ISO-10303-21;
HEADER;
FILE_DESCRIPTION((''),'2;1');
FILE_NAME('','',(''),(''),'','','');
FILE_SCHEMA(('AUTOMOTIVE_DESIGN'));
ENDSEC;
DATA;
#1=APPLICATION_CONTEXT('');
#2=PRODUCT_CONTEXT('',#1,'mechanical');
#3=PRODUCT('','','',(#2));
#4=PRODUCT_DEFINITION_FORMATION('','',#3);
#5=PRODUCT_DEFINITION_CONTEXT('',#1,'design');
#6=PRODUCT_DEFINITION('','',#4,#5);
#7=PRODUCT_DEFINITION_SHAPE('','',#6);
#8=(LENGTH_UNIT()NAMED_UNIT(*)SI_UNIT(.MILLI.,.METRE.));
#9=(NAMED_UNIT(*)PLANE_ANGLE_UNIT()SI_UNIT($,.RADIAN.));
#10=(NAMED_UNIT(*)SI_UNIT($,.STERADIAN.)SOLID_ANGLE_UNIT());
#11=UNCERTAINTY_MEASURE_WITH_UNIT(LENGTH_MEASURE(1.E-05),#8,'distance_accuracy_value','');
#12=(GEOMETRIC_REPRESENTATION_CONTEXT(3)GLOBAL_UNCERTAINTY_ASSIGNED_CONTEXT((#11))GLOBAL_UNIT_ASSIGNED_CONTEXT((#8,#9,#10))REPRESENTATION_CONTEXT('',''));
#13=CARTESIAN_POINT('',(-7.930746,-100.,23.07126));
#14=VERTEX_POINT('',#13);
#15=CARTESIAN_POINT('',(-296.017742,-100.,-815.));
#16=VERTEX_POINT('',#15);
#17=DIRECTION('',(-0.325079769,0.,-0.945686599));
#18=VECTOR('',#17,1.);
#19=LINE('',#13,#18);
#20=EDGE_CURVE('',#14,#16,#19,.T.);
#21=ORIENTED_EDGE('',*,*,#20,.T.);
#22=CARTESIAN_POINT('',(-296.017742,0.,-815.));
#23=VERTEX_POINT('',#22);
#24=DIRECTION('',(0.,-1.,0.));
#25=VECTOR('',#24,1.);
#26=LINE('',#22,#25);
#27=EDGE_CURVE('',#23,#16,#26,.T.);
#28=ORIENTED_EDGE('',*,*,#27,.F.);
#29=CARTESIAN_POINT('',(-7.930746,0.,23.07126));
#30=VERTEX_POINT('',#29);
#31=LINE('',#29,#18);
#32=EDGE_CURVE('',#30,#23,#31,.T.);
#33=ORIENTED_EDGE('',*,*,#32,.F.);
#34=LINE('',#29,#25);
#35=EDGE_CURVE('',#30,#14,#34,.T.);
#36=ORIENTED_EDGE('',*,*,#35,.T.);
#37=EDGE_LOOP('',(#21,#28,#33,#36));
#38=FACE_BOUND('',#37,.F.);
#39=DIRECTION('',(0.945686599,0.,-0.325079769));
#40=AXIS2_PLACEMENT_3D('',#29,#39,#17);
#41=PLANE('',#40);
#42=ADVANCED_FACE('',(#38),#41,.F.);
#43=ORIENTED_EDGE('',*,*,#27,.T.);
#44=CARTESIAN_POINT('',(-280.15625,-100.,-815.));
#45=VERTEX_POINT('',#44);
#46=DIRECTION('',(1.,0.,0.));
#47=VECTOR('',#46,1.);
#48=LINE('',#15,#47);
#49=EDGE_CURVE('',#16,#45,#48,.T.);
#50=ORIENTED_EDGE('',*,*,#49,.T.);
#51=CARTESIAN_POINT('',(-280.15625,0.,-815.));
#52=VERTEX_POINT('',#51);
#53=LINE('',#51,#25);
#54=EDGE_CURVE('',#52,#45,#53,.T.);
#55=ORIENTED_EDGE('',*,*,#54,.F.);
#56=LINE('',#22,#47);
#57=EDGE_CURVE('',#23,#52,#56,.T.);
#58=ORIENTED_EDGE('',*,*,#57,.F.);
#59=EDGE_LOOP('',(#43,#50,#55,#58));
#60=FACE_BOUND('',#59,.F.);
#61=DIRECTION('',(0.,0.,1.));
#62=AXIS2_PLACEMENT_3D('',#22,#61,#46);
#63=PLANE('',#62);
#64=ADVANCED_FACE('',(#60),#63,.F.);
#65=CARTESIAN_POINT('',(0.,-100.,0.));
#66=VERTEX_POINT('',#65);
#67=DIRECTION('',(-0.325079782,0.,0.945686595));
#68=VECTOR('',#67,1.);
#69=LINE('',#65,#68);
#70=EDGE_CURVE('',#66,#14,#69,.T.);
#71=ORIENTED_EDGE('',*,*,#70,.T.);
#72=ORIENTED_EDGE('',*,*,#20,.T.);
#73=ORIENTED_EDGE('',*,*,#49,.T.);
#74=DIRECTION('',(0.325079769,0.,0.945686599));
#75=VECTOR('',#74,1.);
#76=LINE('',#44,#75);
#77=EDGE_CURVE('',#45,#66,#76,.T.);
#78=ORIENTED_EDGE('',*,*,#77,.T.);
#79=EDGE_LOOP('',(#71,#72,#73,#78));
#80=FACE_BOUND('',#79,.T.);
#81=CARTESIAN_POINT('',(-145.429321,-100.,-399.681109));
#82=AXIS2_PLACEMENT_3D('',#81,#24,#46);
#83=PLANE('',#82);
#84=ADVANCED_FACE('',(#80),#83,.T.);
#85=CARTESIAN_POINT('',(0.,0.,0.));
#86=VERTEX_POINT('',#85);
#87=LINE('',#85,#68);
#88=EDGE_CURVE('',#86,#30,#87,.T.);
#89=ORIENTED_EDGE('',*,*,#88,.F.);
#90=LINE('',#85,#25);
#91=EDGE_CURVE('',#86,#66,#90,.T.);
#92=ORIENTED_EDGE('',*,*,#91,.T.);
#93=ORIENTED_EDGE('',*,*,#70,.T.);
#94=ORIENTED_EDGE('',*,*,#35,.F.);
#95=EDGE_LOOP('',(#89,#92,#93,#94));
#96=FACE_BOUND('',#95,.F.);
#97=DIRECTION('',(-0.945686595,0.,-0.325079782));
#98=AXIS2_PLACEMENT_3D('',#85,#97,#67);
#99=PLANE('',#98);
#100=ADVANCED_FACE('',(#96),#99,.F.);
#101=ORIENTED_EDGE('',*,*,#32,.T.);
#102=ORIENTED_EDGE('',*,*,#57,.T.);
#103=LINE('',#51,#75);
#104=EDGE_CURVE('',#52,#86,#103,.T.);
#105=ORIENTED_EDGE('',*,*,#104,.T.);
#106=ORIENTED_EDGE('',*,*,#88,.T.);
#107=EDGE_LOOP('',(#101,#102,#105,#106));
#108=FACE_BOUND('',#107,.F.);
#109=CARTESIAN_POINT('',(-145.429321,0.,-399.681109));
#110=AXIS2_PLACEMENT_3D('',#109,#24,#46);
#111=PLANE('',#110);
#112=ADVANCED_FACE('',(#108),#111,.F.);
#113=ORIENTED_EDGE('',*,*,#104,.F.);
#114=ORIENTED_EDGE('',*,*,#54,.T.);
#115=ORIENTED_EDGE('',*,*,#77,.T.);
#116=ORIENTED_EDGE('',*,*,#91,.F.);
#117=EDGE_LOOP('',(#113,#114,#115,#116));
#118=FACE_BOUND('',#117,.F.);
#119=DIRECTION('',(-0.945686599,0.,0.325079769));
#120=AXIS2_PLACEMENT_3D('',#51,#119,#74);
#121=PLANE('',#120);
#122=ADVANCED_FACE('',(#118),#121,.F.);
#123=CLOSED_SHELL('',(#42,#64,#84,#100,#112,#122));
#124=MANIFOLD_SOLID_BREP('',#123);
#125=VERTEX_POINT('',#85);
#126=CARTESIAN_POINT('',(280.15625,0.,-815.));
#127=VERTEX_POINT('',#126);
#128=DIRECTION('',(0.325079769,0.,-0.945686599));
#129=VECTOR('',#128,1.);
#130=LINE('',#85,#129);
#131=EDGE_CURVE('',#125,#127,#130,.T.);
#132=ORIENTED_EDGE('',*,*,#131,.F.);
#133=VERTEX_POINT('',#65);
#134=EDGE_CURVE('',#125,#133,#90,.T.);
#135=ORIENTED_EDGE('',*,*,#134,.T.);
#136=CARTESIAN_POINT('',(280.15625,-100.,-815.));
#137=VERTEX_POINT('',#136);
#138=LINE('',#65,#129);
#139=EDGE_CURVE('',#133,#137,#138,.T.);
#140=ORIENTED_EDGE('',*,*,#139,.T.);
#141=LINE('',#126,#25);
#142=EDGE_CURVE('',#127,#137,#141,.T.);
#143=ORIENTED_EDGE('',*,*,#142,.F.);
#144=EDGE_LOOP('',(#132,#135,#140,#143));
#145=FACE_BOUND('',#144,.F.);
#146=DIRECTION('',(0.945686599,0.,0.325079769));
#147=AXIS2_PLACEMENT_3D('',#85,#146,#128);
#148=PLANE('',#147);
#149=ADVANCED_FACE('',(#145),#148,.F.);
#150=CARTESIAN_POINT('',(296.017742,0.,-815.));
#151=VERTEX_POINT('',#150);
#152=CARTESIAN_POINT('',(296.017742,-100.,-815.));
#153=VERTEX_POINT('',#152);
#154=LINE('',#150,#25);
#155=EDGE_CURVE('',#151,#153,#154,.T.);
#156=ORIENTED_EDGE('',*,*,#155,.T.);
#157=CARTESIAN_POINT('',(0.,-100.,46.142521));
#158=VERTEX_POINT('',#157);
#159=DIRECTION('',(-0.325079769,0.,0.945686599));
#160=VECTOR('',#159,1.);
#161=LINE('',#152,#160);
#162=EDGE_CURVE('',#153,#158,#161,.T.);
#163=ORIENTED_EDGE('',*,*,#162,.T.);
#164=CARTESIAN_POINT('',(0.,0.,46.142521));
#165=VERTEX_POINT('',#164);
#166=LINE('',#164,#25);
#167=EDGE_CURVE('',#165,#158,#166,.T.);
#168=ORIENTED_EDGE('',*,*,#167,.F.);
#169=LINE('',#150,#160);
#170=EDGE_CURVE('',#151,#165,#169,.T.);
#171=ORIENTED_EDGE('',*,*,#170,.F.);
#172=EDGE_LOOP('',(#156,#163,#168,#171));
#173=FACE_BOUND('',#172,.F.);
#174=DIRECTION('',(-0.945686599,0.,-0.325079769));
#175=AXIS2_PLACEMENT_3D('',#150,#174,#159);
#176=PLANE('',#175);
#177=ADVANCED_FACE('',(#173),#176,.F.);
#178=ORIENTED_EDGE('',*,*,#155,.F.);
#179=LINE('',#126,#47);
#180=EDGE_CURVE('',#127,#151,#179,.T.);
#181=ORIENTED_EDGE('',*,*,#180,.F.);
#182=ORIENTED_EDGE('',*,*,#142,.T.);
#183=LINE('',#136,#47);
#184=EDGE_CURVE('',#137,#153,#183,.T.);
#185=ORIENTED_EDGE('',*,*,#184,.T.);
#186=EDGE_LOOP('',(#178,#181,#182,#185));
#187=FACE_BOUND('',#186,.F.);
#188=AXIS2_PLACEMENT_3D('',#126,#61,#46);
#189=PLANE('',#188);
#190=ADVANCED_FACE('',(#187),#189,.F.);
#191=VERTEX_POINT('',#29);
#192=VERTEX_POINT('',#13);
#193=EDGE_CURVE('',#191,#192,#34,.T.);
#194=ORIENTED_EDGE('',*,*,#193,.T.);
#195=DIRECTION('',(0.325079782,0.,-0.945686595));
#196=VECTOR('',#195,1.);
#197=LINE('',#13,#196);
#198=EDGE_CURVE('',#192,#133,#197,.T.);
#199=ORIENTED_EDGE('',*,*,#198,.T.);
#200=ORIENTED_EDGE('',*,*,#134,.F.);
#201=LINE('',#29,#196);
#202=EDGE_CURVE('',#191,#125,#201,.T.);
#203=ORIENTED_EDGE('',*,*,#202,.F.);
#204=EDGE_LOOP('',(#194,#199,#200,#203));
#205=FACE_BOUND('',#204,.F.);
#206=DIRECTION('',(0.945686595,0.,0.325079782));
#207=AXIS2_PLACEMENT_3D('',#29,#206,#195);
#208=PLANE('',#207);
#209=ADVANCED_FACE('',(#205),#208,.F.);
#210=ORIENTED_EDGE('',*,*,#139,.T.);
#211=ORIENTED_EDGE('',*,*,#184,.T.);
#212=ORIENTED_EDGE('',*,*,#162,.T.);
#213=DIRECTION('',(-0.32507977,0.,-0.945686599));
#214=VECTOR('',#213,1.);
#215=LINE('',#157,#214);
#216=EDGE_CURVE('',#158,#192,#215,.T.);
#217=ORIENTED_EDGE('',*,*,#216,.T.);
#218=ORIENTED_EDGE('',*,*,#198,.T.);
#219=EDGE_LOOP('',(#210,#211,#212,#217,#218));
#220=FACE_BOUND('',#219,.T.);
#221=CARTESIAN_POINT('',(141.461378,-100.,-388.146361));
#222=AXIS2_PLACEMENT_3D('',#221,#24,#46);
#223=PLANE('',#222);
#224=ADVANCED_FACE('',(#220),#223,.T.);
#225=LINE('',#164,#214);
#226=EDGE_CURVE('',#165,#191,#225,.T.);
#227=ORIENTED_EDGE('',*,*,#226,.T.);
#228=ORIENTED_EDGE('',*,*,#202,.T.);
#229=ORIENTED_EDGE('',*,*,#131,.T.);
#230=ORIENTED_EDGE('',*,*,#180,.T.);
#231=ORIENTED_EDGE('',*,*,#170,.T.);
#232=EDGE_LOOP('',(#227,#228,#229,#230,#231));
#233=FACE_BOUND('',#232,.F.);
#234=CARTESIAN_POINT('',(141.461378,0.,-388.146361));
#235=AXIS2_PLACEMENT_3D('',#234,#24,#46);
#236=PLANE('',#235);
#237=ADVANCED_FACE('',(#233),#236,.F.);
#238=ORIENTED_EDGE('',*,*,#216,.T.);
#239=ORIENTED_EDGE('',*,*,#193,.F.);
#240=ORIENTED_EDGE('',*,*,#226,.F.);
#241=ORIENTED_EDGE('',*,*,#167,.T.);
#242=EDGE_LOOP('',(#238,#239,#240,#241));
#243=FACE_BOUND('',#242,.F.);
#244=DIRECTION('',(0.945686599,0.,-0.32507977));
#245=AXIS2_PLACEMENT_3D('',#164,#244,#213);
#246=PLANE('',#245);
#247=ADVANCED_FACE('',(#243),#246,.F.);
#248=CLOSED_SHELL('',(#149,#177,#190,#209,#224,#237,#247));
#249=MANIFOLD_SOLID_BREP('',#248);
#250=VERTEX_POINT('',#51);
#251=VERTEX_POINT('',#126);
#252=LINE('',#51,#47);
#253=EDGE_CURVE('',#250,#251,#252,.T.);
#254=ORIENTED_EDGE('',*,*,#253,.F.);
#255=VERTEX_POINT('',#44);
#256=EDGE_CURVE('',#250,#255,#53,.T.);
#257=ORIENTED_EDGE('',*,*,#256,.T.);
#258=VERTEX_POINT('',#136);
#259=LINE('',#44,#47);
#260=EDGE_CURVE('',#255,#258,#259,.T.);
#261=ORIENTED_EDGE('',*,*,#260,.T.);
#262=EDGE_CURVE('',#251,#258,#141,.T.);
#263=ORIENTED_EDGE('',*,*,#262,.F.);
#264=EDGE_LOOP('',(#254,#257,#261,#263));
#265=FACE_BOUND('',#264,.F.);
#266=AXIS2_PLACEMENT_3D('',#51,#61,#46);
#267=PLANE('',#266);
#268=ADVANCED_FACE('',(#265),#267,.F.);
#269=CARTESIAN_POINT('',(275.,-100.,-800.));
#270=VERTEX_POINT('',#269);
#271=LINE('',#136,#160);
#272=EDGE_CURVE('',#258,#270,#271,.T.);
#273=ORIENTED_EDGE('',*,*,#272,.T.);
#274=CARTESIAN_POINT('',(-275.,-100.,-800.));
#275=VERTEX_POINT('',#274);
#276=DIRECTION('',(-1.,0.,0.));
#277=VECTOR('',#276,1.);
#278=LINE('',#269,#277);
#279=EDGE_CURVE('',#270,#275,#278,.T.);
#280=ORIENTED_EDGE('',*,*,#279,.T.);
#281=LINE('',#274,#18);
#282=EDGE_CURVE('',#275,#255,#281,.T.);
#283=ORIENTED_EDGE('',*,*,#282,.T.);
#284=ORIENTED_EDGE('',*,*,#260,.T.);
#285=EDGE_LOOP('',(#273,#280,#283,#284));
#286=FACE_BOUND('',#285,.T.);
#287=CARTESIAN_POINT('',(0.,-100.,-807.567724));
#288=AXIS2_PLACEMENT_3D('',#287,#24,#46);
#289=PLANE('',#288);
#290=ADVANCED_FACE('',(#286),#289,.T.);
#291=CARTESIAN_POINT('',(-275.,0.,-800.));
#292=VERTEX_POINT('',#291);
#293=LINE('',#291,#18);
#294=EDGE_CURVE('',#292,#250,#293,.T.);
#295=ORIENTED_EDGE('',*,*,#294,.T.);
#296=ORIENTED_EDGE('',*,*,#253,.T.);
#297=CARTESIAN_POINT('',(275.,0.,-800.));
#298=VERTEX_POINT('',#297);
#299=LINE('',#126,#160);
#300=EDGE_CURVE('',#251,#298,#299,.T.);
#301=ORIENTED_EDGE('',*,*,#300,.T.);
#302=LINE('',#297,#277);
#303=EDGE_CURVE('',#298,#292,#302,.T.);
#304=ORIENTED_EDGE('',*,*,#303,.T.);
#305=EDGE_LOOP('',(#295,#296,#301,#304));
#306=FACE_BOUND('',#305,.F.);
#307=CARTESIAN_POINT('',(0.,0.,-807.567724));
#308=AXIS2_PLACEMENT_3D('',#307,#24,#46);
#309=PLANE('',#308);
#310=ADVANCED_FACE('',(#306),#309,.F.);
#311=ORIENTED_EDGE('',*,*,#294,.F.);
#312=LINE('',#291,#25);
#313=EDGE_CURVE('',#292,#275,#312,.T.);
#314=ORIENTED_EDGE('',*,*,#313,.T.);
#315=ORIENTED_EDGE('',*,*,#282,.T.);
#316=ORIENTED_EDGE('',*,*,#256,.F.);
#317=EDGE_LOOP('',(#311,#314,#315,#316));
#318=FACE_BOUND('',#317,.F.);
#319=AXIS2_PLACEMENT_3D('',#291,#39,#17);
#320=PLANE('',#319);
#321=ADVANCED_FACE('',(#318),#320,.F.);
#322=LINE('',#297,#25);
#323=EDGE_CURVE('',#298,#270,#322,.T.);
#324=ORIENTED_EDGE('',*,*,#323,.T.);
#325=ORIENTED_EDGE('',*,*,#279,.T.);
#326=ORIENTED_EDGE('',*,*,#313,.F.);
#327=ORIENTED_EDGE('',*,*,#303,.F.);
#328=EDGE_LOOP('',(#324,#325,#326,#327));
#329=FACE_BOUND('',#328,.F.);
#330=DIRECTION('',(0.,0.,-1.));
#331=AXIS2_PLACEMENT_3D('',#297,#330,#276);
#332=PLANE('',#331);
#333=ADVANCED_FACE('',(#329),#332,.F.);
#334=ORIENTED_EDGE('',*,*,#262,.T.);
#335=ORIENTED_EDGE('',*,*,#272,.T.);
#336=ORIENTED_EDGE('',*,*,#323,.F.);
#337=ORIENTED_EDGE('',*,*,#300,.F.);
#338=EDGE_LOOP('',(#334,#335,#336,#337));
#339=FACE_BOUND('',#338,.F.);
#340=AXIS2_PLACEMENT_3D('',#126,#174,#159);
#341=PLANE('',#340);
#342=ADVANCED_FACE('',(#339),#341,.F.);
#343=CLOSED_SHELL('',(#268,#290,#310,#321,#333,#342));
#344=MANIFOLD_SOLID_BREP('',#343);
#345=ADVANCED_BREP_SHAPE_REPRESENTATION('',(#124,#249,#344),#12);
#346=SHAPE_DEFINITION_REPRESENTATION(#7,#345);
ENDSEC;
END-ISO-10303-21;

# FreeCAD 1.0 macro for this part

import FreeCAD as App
import Part
import Sketcher

V = App.Vector

doc = App.newDocument("Part")
body = doc.addObject("PartDesign::Body", "Body")

sketch1 = doc.addObject("Sketcher::SketchObject", "Sketch")
body.addObject(sketch1)
sketch1.AttachmentSupport = (doc.XZ_Plane, [""])
sketch1.MapMode = "FlatFace"
sketch1.addGeometry([
    Part.LineSegment(V(-280, -815, 0), V(0, 0, 0)),
    Part.LineSegment(V(0, 0, 0), V(-8, 23, 0)),
    Part.LineSegment(V(-8, 23, 0), V(-296, -815, 0)),
    Part.LineSegment(V(-296, -815, 0), V(-280, -815, 0)),
], False)
sketch1.addConstraint([
    Sketcher.Constraint("Coincident", 0, 2, 1, 1),
    Sketcher.Constraint("Coincident", 1, 2, 2, 1),
    Sketcher.Constraint("Coincident", 2, 2, 3, 1),
    Sketcher.Constraint("Coincident", 3, 2, 0, 1),
    Sketcher.Constraint("Horizontal", 3),
    Sketcher.Constraint("Coincident", 0, 2, -1, 1),
    Sketcher.Constraint("Parallel", 0, 2),
    Sketcher.Constraint("DistanceY", 2, 2, -1, 1, 815.0),
    Sketcher.Constraint("DistanceX", 3, 1, 3, 2, 15.861492),
    Sketcher.Constraint("DistanceY", -1, 1, 1, 2, 23.07126),
    Sketcher.Constraint("DistanceX", 2, 2, -1, 1, 296.017742),
])
pad1 = doc.addObject("PartDesign::Pad", "Pad")
body.addObject(pad1)
pad1.Profile = sketch1
pad1.Length = 100
body2 = doc.addObject("PartDesign::Body", "Body001")

sketch2 = doc.addObject("Sketcher::SketchObject", "Sketch001")
body2.addObject(sketch2)
sketch2.AttachmentSupport = (doc.getObject("XZ_Plane001"), [""])
sketch2.MapMode = "FlatFace"
sketch2.addGeometry([
    Part.LineSegment(V(0, 0, 0), V(280, -815, 0)),
    Part.LineSegment(V(280, -815, 0), V(296, -815, 0)),
    Part.LineSegment(V(296, -815, 0), V(0, 46, 0)),
    Part.LineSegment(V(0, 46, 0), V(-8, 23, 0)),
    Part.LineSegment(V(-8, 23, 0), V(0, 0, 0)),
], False)
sketch2.addConstraint([
    Sketcher.Constraint("Coincident", 0, 2, 1, 1),
    Sketcher.Constraint("Coincident", 1, 2, 2, 1),
    Sketcher.Constraint("Coincident", 2, 2, 3, 1),
    Sketcher.Constraint("Coincident", 3, 2, 4, 1),
    Sketcher.Constraint("Coincident", 4, 2, 0, 1),
    Sketcher.Constraint("Horizontal", 1),
    Sketcher.Constraint("Coincident", 4, 2, -1, 1),
    Sketcher.Constraint("PointOnObject", 2, 2, -2),
    Sketcher.Constraint("Parallel", 0, 2),
    Sketcher.Constraint("Parallel", 2, 4),
    Sketcher.Constraint("Equal", 3, 4),
    Sketcher.Constraint("DistanceY", 0, 2, -1, 1, 815.0),
    Sketcher.Constraint("DistanceX", 1, 1, 1, 2, 15.861492),
    Sketcher.Constraint("Distance", 2, 910.600321),
])
pad2 = doc.addObject("PartDesign::Pad", "Pad001")
body2.addObject(pad2)
pad2.Profile = sketch2
pad2.Length = 100
body3 = doc.addObject("PartDesign::Body", "Body002")

sketch3 = doc.addObject("Sketcher::SketchObject", "Sketch002")
body3.addObject(sketch3)
sketch3.AttachmentSupport = (doc.getObject("XZ_Plane002"), [""])
sketch3.MapMode = "FlatFace"
sketch3.addGeometry([
    Part.LineSegment(V(275, -800, 0), V(-275, -800, 0)),
    Part.LineSegment(V(-275, -800, 0), V(-280, -815, 0)),
    Part.LineSegment(V(-280, -815, 0), V(280, -815, 0)),
    Part.LineSegment(V(280, -815, 0), V(275, -800, 0)),
], False)
sketch3.addConstraint([
    Sketcher.Constraint("Coincident", 0, 2, 1, 1),
    Sketcher.Constraint("Coincident", 1, 2, 2, 1),
    Sketcher.Constraint("Coincident", 2, 2, 3, 1),
    Sketcher.Constraint("Coincident", 3, 2, 0, 1),
    Sketcher.Constraint("Horizontal", 0),
    Sketcher.Constraint("Horizontal", 2),
    Sketcher.Constraint("Equal", 1, 3),
    Sketcher.Constraint("DistanceX", 0, 2, 0, 1, 550.0),
    Sketcher.Constraint("DistanceX", 0, 2, -1, 1, 275.0),
    Sketcher.Constraint("DistanceY", 0, 2, -1, 1, 800.0),
    Sketcher.Constraint("DistanceY", 1, 2, -1, 1, 815.0),
    Sketcher.Constraint("DistanceX", 2, 1, 2, 2, 560.3125),
])
pad3 = doc.addObject("PartDesign::Pad", "Pad002")
body3.addObject(pad3)
pad3.Profile = sketch3
pad3.Length = 100

doc.recompute()
